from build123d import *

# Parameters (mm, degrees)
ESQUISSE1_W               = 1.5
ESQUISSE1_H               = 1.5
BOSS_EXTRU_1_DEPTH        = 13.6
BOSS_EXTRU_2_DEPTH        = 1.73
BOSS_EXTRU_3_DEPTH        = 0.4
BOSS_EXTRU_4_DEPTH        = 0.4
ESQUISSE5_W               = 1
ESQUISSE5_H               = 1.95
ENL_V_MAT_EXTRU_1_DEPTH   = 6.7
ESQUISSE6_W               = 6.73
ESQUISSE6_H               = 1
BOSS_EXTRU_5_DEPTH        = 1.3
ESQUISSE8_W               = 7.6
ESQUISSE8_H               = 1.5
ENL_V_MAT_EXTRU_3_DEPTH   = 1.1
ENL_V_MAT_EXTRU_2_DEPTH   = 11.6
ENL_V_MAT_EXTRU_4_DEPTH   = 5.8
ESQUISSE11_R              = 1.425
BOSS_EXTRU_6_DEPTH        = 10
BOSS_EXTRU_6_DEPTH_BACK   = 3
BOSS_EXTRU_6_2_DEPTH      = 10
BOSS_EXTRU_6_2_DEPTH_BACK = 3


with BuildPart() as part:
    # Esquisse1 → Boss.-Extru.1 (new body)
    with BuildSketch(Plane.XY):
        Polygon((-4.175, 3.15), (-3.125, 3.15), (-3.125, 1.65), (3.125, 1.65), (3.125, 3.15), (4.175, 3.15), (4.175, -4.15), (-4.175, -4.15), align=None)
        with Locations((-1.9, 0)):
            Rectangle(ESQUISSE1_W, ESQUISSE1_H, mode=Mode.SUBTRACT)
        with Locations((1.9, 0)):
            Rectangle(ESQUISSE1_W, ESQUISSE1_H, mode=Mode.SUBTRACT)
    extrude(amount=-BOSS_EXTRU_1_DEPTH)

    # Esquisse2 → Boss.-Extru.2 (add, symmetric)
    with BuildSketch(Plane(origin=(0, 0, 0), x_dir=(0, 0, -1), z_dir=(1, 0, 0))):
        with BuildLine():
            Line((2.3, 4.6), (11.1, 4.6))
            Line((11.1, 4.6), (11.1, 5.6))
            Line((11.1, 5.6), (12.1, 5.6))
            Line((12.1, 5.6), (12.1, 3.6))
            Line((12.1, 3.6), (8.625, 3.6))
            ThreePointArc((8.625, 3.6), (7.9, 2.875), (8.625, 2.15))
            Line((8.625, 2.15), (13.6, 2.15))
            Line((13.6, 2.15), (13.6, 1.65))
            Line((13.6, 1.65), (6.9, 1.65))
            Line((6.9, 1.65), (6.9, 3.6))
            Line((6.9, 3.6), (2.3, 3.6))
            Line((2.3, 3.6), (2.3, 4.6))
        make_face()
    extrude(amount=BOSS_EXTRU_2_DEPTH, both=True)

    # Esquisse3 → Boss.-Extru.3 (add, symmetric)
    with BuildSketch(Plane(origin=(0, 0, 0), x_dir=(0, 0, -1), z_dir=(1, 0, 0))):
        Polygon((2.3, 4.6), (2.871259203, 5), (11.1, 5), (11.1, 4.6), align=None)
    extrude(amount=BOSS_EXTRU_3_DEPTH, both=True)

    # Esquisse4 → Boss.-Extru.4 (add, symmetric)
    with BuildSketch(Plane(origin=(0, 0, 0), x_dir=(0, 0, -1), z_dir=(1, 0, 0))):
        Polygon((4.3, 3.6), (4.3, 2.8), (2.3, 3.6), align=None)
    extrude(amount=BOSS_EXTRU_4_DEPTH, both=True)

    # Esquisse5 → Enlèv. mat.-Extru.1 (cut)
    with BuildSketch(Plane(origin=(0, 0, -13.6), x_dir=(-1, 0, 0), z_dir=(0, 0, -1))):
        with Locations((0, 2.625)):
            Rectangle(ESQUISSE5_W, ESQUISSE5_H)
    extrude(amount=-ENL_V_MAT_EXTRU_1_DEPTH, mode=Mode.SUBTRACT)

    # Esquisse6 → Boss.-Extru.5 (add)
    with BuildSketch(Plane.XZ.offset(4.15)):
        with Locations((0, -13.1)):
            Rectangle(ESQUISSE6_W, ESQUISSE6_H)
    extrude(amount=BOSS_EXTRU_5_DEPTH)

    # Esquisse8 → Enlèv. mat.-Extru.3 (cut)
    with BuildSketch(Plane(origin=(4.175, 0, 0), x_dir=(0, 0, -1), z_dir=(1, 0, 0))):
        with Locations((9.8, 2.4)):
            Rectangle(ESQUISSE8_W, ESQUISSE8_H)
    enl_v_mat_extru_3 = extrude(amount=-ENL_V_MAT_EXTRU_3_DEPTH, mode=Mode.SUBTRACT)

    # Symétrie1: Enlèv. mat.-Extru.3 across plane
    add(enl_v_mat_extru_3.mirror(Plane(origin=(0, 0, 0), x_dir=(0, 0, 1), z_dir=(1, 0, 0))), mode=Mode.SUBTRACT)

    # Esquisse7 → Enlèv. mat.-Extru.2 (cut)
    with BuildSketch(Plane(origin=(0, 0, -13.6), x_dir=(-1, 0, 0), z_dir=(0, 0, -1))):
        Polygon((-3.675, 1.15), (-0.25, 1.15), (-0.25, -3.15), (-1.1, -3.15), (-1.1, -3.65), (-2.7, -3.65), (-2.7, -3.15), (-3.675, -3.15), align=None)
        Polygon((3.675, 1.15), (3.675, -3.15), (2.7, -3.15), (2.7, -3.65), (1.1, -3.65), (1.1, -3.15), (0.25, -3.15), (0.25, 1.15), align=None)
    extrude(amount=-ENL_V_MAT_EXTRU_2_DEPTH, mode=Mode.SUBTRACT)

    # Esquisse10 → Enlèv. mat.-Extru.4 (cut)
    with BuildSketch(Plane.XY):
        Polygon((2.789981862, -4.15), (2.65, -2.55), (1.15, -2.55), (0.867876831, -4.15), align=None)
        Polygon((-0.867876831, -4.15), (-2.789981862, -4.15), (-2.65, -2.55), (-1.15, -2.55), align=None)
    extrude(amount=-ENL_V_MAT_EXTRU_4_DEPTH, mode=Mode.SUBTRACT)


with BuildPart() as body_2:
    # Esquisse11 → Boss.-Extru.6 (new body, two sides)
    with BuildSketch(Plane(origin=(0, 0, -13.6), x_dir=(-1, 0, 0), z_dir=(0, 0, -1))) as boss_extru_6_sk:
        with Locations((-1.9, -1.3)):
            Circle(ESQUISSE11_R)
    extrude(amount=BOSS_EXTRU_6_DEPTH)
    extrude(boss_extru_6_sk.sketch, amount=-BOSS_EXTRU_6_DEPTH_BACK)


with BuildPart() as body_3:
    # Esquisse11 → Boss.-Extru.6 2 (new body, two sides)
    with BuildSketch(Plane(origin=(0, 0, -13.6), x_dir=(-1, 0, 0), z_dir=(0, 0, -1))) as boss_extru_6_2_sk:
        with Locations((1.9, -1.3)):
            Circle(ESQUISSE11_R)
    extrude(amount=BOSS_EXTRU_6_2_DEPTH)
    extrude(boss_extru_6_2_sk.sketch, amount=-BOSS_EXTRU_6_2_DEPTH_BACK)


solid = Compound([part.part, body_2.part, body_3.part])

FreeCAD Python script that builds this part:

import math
import FreeCAD as App
import Part
import Sketcher
from FreeCAD import Vector
Q = App.Units.Quantity


def add_polygon(sketch, points):
    """Adds a closed chain of lines whose ends are joined by coincident constraints."""
    first, n = sketch.GeometryCount, len(points)
    for a, b in zip(points, points[1:] + points[:1]):
        sketch.addGeometry(Part.LineSegment(App.Vector(*a, 0), App.Vector(*b, 0)), False)
    for i in range(n):
        sketch.addConstraint(Sketcher.Constraint("Coincident", first + i, 2, first + (i + 1) % n, 1))

doc = App.newDocument("Part")
body = doc.addObject("PartDesign::Body", "Body")

# Sketch on XY plane
sketch1 = doc.addObject("Sketcher::SketchObject", "Sketch")
body.addObject(sketch1)
sketch1.AttachmentSupport = (doc.XY_Plane, [""])
sketch1.MapMode = "FlatFace"
add_polygon(sketch1, [(-3.1, 3.1), (-4.2, 3.1), (-4.2, -4.2), (4.2, -4.2), (4.2, 3.1), (3.1, 3.1), (3.1, 1.6), (-3.1, 1.6)])  # lines 0-7
add_polygon(sketch1, [(1.1, -0.8), (1.1, 0.8), (2.6, 0.8), (2.6, -0.8)])  # lines 8-11
add_polygon(sketch1, [(-2.6, -0.8), (-2.6, 0.8), (-1.1, 0.8), (-1.1, -0.8)])  # lines 12-15
sketch1.addConstraint([
    Sketcher.Constraint("Horizontal", 0),
    Sketcher.Constraint("Vertical", 1),
    Sketcher.Constraint("Horizontal", 2),
    Sketcher.Constraint("Vertical", 3),
    Sketcher.Constraint("Horizontal", 4),
    Sketcher.Constraint("Vertical", 5),
    Sketcher.Constraint("Horizontal", 6),
    Sketcher.Constraint("Vertical", 7),
    Sketcher.Constraint("Vertical", 8),
    Sketcher.Constraint("Horizontal", 9),
    Sketcher.Constraint("Vertical", 10),
    Sketcher.Constraint("Horizontal", 11),
    Sketcher.Constraint("Vertical", 12),
    Sketcher.Constraint("Horizontal", 13),
    Sketcher.Constraint("Vertical", 14),
    Sketcher.Constraint("Horizontal", 15),
    Sketcher.Constraint("Symmetric", 10, 2, 12, 2, -1, 1),
    Sketcher.Constraint("Symmetric", 8, 2, 14, 2, -1, 1),
    Sketcher.Constraint("Symmetric", 0, 2, 3, 2, -2),
    Sketcher.Constraint("Horizontal", 9, 2, 12, 2),
    Sketcher.Constraint("Equal", 0, 4),
    Sketcher.Constraint("Equal", 15, 5),
    Sketcher.Constraint("Equal", 7, 8),
    Sketcher.Constraint("DistanceX", 9, 1, 9, 2, 1.5),
    Sketcher.Constraint("DistanceY", 1, 2, 1, 1, 7.3),
    Sketcher.Constraint("DistanceX", 0, 2, 0, 1, 1.05),
    Sketcher.Constraint("DistanceX", 2, 1, 2, 2, 8.35),
    Sketcher.Constraint("DistanceY", 8, 2, 5, 2, 0.9),
    Sketcher.Constraint("DistanceX", 12, 2, 8, 2, 3.8),
])
pad1 = doc.addObject("PartDesign::Pad", "Pad")
body.addObject(pad1)
pad1.Profile = sketch1
pad1.Length = 13.6
pad1.Reversed = True

# Sketch on YZ plane
sketch2 = doc.addObject("Sketcher::SketchObject", "Sketch001")
body.addObject(sketch2)
sketch2.AttachmentSupport = (doc.YZ_Plane, [""])
sketch2.MapMode = "FlatFace"
sketch2.addGeometry([
    Part.LineSegment(Vector(4.6, -11.1, 0), Vector(4.6, -2.3, 0)),  # 0
    Part.LineSegment(Vector(4.6, -2.3, 0), Vector(3.6, -2.3, 0)),  # 1
    Part.LineSegment(Vector(3.6, -2.3, 0), Vector(3.6, -6.9, 0)),  # 2
    Part.LineSegment(Vector(3.6, -6.9, 0), Vector(1.6, -6.9, 0)),  # 3
    Part.LineSegment(Vector(1.6, -6.9, 0), Vector(1.6, -13.6, 0)),  # 4
    Part.LineSegment(Vector(1.6, -13.6, 0), Vector(2.1, -13.6, 0)),  # 5
    Part.LineSegment(Vector(2.1, -13.6, 0), Vector(2.1, -8.6, 0)),  # 6
    Part.ArcOfCircle(Part.Circle(Vector(2.9, -8.6, 0), Vector(0, 0, 1), 0.7), math.radians(0), math.radians(180)),  # 7
    Part.LineSegment(Vector(3.6, -8.6, 0), Vector(3.6, -12.1, 0)),  # 8
    Part.LineSegment(Vector(3.6, -12.1, 0), Vector(5.6, -12.1, 0)),  # 9
    Part.LineSegment(Vector(5.6, -12.1, 0), Vector(5.6, -11.1, 0)),  # 10
    Part.LineSegment(Vector(5.6, -11.1, 0), Vector(4.6, -11.1, 0)),  # 11
], False)
sketch2.addConstraint([
    Sketcher.Constraint("Coincident", 0, 2, 1, 1),
    Sketcher.Constraint("Coincident", 1, 2, 2, 1),
    Sketcher.Constraint("Coincident", 2, 2, 3, 1),
    Sketcher.Constraint("Coincident", 3, 2, 4, 1),
    Sketcher.Constraint("Coincident", 4, 2, 5, 1),
    Sketcher.Constraint("Coincident", 5, 2, 6, 1),
    Sketcher.Constraint("Tangent", 6, 2, 7, 2),
    Sketcher.Constraint("Tangent", 7, 1, 8, 1),
    Sketcher.Constraint("Coincident", 8, 2, 9, 1),
    Sketcher.Constraint("Coincident", 9, 2, 10, 1),
    Sketcher.Constraint("Coincident", 10, 2, 11, 1),
    Sketcher.Constraint("Coincident", 11, 2, 0, 1),
    Sketcher.Constraint("Vertical", 0),
    Sketcher.Constraint("Horizontal", 1),
    Sketcher.Constraint("Vertical", 2),
    Sketcher.Constraint("Horizontal", 3),
    Sketcher.Constraint("Vertical", 4),
    Sketcher.Constraint("Horizontal", 5),
    Sketcher.Constraint("Vertical", 6),
    Sketcher.Constraint("Vertical", 8),
    Sketcher.Constraint("Horizontal", 9),
    Sketcher.Constraint("Vertical", 10),
    Sketcher.Constraint("Horizontal", 11),
    Sketcher.Constraint("Vertical", 2, 2, 7, 1),
    Sketcher.Constraint("Equal", 1, 11),
    Sketcher.Constraint("Equal", 11, 10),
    Sketcher.Constraint("DistanceX", 1, 2, 1, 1, 1.0),
    Sketcher.Constraint("DistanceX", 5, 1, 5, 2, 0.5),
    Sketcher.Constraint("DistanceY", 0, 1, 0, 2, 8.8),
    Sketcher.Constraint("DistanceY", 2, 2, 2, 1, 4.6),
    Sketcher.Constraint("DistanceY", 4, 2, 4, 1, 6.7),
    Sketcher.Constraint("Radius", 7, 0.725),
    Sketcher.Constraint("DistanceX", -1, 1, 0, 2, 4.6),
    Sketcher.Constraint("DistanceY", 0, 2, -1, 1, 2.3),
    Sketcher.Constraint("DistanceY", 6, 1, 6, 2, 4.975),
])
pad2 = doc.addObject("PartDesign::Pad", "Pad001")
body.addObject(pad2)
pad2.Profile = sketch2
pad2.Length = 3.46
pad2.Midplane = True

# Sketch on YZ plane
sketch3 = doc.addObject("Sketcher::SketchObject", "Sketch002")
body.addObject(sketch3)
sketch3.AttachmentSupport = (doc.YZ_Plane, [""])
sketch3.MapMode = "FlatFace"
add_polygon(sketch3, [(5, -2.87), (4.6, -2.3), (4.6, -11.1), (5, -11.1)])  # lines 0-3
sketch3.addConstraint([
    Sketcher.Constraint("Vertical", 1),
    Sketcher.Constraint("Horizontal", 2),
    Sketcher.Constraint("Vertical", 3),
    Sketcher.Constraint("Angle", 0, Q("125 deg")),
    Sketcher.Constraint("DistanceX", 2, 1, 2, 2, 0.4),
    Sketcher.Constraint("DistanceY", 1, 2, 1, 1, 8.8),
    Sketcher.Constraint("DistanceX", -1, 1, 2, 2, 5.0),
    Sketcher.Constraint("DistanceY", 0, 2, -1, 1, 2.3),
])
pad3 = doc.addObject("PartDesign::Pad", "Pad002")
body.addObject(pad3)
pad3.Profile = sketch3
pad3.Length = 0.8
pad3.Midplane = True

# Sketch on YZ plane
sketch4 = doc.addObject("Sketcher::SketchObject", "Sketch003")
body.addObject(sketch4)
sketch4.AttachmentSupport = (doc.YZ_Plane, [""])
sketch4.MapMode = "FlatFace"
add_polygon(sketch4, [(2.8, -4.3), (3.6, -4.3), (3.6, -2.3)])  # lines 0-2
sketch4.addConstraint([
    Sketcher.Constraint("Horizontal", 0),
    Sketcher.Constraint("Vertical", 1),
    Sketcher.Constraint("DistanceY", 1, 1, 1, 2, 2.0),
    Sketcher.Constraint("DistanceX", 0, 1, 0, 2, 0.8),
    Sketcher.Constraint("DistanceX", -1, 1, 0, 2, 3.6),
    Sketcher.Constraint("DistanceY", 0, 2, -1, 1, 4.3),
])
pad4 = doc.addObject("PartDesign::Pad", "Pad003")
body.addObject(pad4)
pad4.Profile = sketch4
pad4.Length = 0.8
pad4.Midplane = True

# Sketch on XY plane
sketch5 = doc.addObject("Sketcher::SketchObject", "Sketch004")
body.addObject(sketch5)
sketch5.AttachmentSupport = (doc.XY_Plane, [""])
sketch5.MapMode = "FlatFace"
sketch5.AttachmentOffset = App.Placement(Vector(0, 0, -13.6), App.Rotation())
add_polygon(sketch5, [(0.5, 3.6), (0.5, 1.6), (-0.5, 1.6), (-0.5, 3.6)])  # lines 0-3
sketch5.addConstraint([
    Sketcher.Constraint("Vertical", 0),
    Sketcher.Constraint("Horizontal", 1),
    Sketcher.Constraint("Vertical", 2),
    Sketcher.Constraint("Horizontal", 3),
    Sketcher.Constraint("DistanceX", 1, 2, 1, 1, 1.0),
    Sketcher.Constraint("DistanceY", 0, 2, 0, 1, 1.95),
    Sketcher.Constraint("DistanceX", -1, 1, 0, 2, 0.5),
    Sketcher.Constraint("DistanceY", -1, 1, 2, 2, 3.6),
])
pocket1 = doc.addObject("PartDesign::Pocket", "Pocket")
body.addObject(pocket1)
pocket1.Profile = sketch5
pocket1.Length = 6.7
pocket1.Reversed = True

# Sketch on XZ plane
sketch6 = doc.addObject("Sketcher::SketchObject", "Sketch005")
body.addObject(sketch6)
sketch6.AttachmentSupport = (doc.XZ_Plane, [""])
sketch6.MapMode = "FlatFace"
sketch6.AttachmentOffset = App.Placement(Vector(0, 0, 4.15), App.Rotation())
add_polygon(sketch6, [(-3.4, -12.6), (-3.4, -13.6), (3.4, -13.6), (3.4, -12.6)])  # lines 0-3
sketch6.addConstraint([
    Sketcher.Constraint("Vertical", 0),
    Sketcher.Constraint("Horizontal", 1),
    Sketcher.Constraint("Vertical", 2),
    Sketcher.Constraint("Horizontal", 3),
    Sketcher.Constraint("DistanceY", 0, 2, 0, 1, 1.0),
    Sketcher.Constraint("DistanceX", 1, 1, 1, 2, 6.73),
    Sketcher.Constraint("DistanceY", 0, 2, -1, 1, 13.6),
    Sketcher.Constraint("DistanceX", 0, 2, -1, 1, 3.365),
])
pad5 = doc.addObject("PartDesign::Pad", "Pad004")
body.addObject(pad5)
pad5.Profile = sketch6
pad5.Length = 1.3

# Sketch on YZ plane
sketch7 = doc.addObject("Sketcher::SketchObject", "Sketch006")
body.addObject(sketch7)
sketch7.AttachmentSupport = (doc.YZ_Plane, [""])
sketch7.MapMode = "FlatFace"
sketch7.AttachmentOffset = App.Placement(Vector(0, 0, 4.175), App.Rotation())
add_polygon(sketch7, [(3.1, -6), (1.6, -6), (1.6, -13.6), (3.1, -13.6)])  # lines 0-3
sketch7.addConstraint([
    Sketcher.Constraint("Horizontal", 0),
    Sketcher.Constraint("Vertical", 1),
    Sketcher.Constraint("Horizontal", 2),
    Sketcher.Constraint("Vertical", 3),
    Sketcher.Constraint("DistanceX", 0, 2, 0, 1, 1.5),
    Sketcher.Constraint("DistanceY", 1, 2, 1, 1, 7.6),
    Sketcher.Constraint("DistanceY", 0, 2, -1, 1, 6.0),
    Sketcher.Constraint("DistanceX", -1, 1, 0, 2, 1.65),
])
pocket2 = doc.addObject("PartDesign::Pocket", "Pocket001")
body.addObject(pocket2)
pocket2.Profile = sketch7
pocket2.Length = 1.1
doc.recompute()

mirrored = doc.addObject("PartDesign::Mirrored", "Mirrored")
body.addObject(mirrored)
mirrored.Originals = [pocket2]
mirrored.MirrorPlane = (doc.YZ_Plane, [""])
body.Tip = mirrored

# Sketch on XY plane
sketch8 = doc.addObject("Sketcher::SketchObject", "Sketch007")
body.addObject(sketch8)
sketch8.AttachmentSupport = (doc.XY_Plane, [""])
sketch8.MapMode = "FlatFace"
sketch8.AttachmentOffset = App.Placement(Vector(0, 0, -13.6), App.Rotation())
add_polygon(sketch8, [(0.2, 1.1), (3.7, 1.1), (3.7, -3.1), (2.7, -3.1), (2.7, -3.6), (1.1, -3.6), (1.1, -3.1), (0.2, -3.1)])  # lines 0-7
add_polygon(sketch8, [(-3.7, -3.1), (-3.7, 1.1), (-0.2, 1.1), (-0.2, -3.1), (-1.1, -3.1), (-1.1, -3.6), (-2.7, -3.6), (-2.7, -3.1)])  # lines 8-15
sketch8.addConstraint([
    Sketcher.Constraint("Horizontal", 0),
    Sketcher.Constraint("Vertical", 1),
    Sketcher.Constraint("Horizontal", 2),
    Sketcher.Constraint("Vertical", 3),
    Sketcher.Constraint("Horizontal", 4),
    Sketcher.Constraint("Vertical", 5),
    Sketcher.Constraint("Horizontal", 6),
    Sketcher.Constraint("Vertical", 7),
    Sketcher.Constraint("Vertical", 8),
    Sketcher.Constraint("Horizontal", 9),
    Sketcher.Constraint("Vertical", 10),
    Sketcher.Constraint("Horizontal", 11),
    Sketcher.Constraint("Vertical", 12),
    Sketcher.Constraint("Horizontal", 13),
    Sketcher.Constraint("Vertical", 14),
    Sketcher.Constraint("Horizontal", 15),
    Sketcher.Constraint("Symmetric", 0, 2, 8, 2, -2),
    Sketcher.Constraint("Symmetric", 6, 2, 10, 2, -2),
    Sketcher.Constraint("Symmetric", 4, 2, 12, 2, -2),
    Sketcher.Constraint("Symmetric", 2, 2, 14, 2, -2),
    Sketcher.Constraint("Horizontal", 2, 2, 5, 2),
    Sketcher.Constraint("DistanceX", 4, 2, 4, 1, 1.6),
    Sketcher.Constraint("DistanceY", 1, 2, 1, 1, 4.3),
    Sketcher.Constraint("DistanceY", 3, 2, 3, 1, 0.5),
    Sketcher.Constraint("DistanceX", 6, 2, 6, 1, 0.85),
    Sketcher.Constraint("DistanceX", -1, 1, 2, 2, 2.7),
    Sketcher.Constraint("DistanceX", 0, 1, 0, 2, 3.425),
    Sketcher.Constraint("DistanceY", -1, 1, 0, 2, 1.15),
])
pocket3 = doc.addObject("PartDesign::Pocket", "Pocket002")
body.addObject(pocket3)
pocket3.Profile = sketch8
pocket3.Length = 11.6
pocket3.Reversed = True

# Sketch on XY plane
sketch9 = doc.addObject("Sketcher::SketchObject", "Sketch008")
body.addObject(sketch9)
sketch9.AttachmentSupport = (doc.XY_Plane, [""])
sketch9.MapMode = "FlatFace"
add_polygon(sketch9, [(2.8, -4.2), (2.6, -2.5), (1.1, -2.5), (0.9, -4.2)])  # lines 0-3
add_polygon(sketch9, [(-2.8, -4.2), (-0.9, -4.2), (-1.1, -2.5), (-2.6, -2.5)])  # lines 4-7
sketch9.addConstraint([
    Sketcher.Constraint("Horizontal", 1),
    Sketcher.Constraint("Horizontal", 3),
    Sketcher.Constraint("Horizontal", 4),
    Sketcher.Constraint("Horizontal", 6),
    Sketcher.Constraint("Symmetric", 2, 2, 4, 2, -2),
    Sketcher.Constraint("Symmetric", 1, 2, 5, 2, -2),
    Sketcher.Constraint("Equal", 3, 4),
    Sketcher.Constraint("Equal", 1, 6),
    Sketcher.Constraint("Angle", 0, Q("95 deg")),
    Sketcher.Constraint("Angle", 2, Q("-100 deg")),
    Sketcher.Constraint("DistanceX", 1, 2, 1, 1, 1.5),
    Sketcher.Constraint("DistanceY", 2, 2, 1, 2, 1.6),
    Sketcher.Constraint("DistanceX", 5, 2, 1, 2, 2.3),
    Sketcher.Constraint("DistanceY", 0, 2, -1, 1, 2.55),
])
pocket4 = doc.addObject("PartDesign::Pocket", "Pocket003")
body.addObject(pocket4)
pocket4.Profile = sketch9
pocket4.Length = 5.8
body2 = doc.addObject("PartDesign::Body", "Body001")

# Sketch on XY plane
sketch10 = doc.addObject("Sketcher::SketchObject", "Sketch009")
body2.addObject(sketch10)
sketch10.AttachmentSupport = (doc.getObject("XY_Plane001"), [""])
sketch10.MapMode = "FlatFace"
sketch10.AttachmentOffset = App.Placement(Vector(0, 0, -13.6), App.Rotation())
sketch10.addGeometry(Part.Circle(Vector(1.9, -1.3, 0), Vector(0, 0, 1), 1.4), False)
sketch10.addConstraint([
    Sketcher.Constraint("Diameter", 0, 2.85),
    Sketcher.Constraint("DistanceX", -1, 1, 0, 3, 1.9),
    Sketcher.Constraint("DistanceY", 0, 3, -1, 1, 1.3),
])
pad6 = doc.addObject("PartDesign::Pad", "Pad005")
body2.addObject(pad6)
pad6.Profile = sketch10
pad6.Type = "TwoLengths"
pad6.Length = 10
pad6.Length2 = 3
pad6.Reversed = True
body3 = doc.addObject("PartDesign::Body", "Body002")

# Sketch on XY plane
sketch11 = doc.addObject("Sketcher::SketchObject", "Sketch010")
body3.addObject(sketch11)
sketch11.AttachmentSupport = (doc.getObject("XY_Plane002"), [""])
sketch11.MapMode = "FlatFace"
sketch11.AttachmentOffset = App.Placement(Vector(0, 0, -13.6), App.Rotation())
sketch11.addGeometry(Part.Circle(Vector(-1.9, -1.3, 0), Vector(0, 0, 1), 1.4), False)
sketch11.addConstraint([
    Sketcher.Constraint("Diameter", 0, 2.85),
    Sketcher.Constraint("DistanceX", 0, 3, -1, 1, 1.9),
    Sketcher.Constraint("DistanceY", 0, 3, -1, 1, 1.3),
])
pad7 = doc.addObject("PartDesign::Pad", "Pad006")
body3.addObject(pad7)
pad7.Profile = sketch11
pad7.Type = "TwoLengths"
pad7.Length = 10
pad7.Length2 = 3
pad7.Reversed = True

doc.recompute()
